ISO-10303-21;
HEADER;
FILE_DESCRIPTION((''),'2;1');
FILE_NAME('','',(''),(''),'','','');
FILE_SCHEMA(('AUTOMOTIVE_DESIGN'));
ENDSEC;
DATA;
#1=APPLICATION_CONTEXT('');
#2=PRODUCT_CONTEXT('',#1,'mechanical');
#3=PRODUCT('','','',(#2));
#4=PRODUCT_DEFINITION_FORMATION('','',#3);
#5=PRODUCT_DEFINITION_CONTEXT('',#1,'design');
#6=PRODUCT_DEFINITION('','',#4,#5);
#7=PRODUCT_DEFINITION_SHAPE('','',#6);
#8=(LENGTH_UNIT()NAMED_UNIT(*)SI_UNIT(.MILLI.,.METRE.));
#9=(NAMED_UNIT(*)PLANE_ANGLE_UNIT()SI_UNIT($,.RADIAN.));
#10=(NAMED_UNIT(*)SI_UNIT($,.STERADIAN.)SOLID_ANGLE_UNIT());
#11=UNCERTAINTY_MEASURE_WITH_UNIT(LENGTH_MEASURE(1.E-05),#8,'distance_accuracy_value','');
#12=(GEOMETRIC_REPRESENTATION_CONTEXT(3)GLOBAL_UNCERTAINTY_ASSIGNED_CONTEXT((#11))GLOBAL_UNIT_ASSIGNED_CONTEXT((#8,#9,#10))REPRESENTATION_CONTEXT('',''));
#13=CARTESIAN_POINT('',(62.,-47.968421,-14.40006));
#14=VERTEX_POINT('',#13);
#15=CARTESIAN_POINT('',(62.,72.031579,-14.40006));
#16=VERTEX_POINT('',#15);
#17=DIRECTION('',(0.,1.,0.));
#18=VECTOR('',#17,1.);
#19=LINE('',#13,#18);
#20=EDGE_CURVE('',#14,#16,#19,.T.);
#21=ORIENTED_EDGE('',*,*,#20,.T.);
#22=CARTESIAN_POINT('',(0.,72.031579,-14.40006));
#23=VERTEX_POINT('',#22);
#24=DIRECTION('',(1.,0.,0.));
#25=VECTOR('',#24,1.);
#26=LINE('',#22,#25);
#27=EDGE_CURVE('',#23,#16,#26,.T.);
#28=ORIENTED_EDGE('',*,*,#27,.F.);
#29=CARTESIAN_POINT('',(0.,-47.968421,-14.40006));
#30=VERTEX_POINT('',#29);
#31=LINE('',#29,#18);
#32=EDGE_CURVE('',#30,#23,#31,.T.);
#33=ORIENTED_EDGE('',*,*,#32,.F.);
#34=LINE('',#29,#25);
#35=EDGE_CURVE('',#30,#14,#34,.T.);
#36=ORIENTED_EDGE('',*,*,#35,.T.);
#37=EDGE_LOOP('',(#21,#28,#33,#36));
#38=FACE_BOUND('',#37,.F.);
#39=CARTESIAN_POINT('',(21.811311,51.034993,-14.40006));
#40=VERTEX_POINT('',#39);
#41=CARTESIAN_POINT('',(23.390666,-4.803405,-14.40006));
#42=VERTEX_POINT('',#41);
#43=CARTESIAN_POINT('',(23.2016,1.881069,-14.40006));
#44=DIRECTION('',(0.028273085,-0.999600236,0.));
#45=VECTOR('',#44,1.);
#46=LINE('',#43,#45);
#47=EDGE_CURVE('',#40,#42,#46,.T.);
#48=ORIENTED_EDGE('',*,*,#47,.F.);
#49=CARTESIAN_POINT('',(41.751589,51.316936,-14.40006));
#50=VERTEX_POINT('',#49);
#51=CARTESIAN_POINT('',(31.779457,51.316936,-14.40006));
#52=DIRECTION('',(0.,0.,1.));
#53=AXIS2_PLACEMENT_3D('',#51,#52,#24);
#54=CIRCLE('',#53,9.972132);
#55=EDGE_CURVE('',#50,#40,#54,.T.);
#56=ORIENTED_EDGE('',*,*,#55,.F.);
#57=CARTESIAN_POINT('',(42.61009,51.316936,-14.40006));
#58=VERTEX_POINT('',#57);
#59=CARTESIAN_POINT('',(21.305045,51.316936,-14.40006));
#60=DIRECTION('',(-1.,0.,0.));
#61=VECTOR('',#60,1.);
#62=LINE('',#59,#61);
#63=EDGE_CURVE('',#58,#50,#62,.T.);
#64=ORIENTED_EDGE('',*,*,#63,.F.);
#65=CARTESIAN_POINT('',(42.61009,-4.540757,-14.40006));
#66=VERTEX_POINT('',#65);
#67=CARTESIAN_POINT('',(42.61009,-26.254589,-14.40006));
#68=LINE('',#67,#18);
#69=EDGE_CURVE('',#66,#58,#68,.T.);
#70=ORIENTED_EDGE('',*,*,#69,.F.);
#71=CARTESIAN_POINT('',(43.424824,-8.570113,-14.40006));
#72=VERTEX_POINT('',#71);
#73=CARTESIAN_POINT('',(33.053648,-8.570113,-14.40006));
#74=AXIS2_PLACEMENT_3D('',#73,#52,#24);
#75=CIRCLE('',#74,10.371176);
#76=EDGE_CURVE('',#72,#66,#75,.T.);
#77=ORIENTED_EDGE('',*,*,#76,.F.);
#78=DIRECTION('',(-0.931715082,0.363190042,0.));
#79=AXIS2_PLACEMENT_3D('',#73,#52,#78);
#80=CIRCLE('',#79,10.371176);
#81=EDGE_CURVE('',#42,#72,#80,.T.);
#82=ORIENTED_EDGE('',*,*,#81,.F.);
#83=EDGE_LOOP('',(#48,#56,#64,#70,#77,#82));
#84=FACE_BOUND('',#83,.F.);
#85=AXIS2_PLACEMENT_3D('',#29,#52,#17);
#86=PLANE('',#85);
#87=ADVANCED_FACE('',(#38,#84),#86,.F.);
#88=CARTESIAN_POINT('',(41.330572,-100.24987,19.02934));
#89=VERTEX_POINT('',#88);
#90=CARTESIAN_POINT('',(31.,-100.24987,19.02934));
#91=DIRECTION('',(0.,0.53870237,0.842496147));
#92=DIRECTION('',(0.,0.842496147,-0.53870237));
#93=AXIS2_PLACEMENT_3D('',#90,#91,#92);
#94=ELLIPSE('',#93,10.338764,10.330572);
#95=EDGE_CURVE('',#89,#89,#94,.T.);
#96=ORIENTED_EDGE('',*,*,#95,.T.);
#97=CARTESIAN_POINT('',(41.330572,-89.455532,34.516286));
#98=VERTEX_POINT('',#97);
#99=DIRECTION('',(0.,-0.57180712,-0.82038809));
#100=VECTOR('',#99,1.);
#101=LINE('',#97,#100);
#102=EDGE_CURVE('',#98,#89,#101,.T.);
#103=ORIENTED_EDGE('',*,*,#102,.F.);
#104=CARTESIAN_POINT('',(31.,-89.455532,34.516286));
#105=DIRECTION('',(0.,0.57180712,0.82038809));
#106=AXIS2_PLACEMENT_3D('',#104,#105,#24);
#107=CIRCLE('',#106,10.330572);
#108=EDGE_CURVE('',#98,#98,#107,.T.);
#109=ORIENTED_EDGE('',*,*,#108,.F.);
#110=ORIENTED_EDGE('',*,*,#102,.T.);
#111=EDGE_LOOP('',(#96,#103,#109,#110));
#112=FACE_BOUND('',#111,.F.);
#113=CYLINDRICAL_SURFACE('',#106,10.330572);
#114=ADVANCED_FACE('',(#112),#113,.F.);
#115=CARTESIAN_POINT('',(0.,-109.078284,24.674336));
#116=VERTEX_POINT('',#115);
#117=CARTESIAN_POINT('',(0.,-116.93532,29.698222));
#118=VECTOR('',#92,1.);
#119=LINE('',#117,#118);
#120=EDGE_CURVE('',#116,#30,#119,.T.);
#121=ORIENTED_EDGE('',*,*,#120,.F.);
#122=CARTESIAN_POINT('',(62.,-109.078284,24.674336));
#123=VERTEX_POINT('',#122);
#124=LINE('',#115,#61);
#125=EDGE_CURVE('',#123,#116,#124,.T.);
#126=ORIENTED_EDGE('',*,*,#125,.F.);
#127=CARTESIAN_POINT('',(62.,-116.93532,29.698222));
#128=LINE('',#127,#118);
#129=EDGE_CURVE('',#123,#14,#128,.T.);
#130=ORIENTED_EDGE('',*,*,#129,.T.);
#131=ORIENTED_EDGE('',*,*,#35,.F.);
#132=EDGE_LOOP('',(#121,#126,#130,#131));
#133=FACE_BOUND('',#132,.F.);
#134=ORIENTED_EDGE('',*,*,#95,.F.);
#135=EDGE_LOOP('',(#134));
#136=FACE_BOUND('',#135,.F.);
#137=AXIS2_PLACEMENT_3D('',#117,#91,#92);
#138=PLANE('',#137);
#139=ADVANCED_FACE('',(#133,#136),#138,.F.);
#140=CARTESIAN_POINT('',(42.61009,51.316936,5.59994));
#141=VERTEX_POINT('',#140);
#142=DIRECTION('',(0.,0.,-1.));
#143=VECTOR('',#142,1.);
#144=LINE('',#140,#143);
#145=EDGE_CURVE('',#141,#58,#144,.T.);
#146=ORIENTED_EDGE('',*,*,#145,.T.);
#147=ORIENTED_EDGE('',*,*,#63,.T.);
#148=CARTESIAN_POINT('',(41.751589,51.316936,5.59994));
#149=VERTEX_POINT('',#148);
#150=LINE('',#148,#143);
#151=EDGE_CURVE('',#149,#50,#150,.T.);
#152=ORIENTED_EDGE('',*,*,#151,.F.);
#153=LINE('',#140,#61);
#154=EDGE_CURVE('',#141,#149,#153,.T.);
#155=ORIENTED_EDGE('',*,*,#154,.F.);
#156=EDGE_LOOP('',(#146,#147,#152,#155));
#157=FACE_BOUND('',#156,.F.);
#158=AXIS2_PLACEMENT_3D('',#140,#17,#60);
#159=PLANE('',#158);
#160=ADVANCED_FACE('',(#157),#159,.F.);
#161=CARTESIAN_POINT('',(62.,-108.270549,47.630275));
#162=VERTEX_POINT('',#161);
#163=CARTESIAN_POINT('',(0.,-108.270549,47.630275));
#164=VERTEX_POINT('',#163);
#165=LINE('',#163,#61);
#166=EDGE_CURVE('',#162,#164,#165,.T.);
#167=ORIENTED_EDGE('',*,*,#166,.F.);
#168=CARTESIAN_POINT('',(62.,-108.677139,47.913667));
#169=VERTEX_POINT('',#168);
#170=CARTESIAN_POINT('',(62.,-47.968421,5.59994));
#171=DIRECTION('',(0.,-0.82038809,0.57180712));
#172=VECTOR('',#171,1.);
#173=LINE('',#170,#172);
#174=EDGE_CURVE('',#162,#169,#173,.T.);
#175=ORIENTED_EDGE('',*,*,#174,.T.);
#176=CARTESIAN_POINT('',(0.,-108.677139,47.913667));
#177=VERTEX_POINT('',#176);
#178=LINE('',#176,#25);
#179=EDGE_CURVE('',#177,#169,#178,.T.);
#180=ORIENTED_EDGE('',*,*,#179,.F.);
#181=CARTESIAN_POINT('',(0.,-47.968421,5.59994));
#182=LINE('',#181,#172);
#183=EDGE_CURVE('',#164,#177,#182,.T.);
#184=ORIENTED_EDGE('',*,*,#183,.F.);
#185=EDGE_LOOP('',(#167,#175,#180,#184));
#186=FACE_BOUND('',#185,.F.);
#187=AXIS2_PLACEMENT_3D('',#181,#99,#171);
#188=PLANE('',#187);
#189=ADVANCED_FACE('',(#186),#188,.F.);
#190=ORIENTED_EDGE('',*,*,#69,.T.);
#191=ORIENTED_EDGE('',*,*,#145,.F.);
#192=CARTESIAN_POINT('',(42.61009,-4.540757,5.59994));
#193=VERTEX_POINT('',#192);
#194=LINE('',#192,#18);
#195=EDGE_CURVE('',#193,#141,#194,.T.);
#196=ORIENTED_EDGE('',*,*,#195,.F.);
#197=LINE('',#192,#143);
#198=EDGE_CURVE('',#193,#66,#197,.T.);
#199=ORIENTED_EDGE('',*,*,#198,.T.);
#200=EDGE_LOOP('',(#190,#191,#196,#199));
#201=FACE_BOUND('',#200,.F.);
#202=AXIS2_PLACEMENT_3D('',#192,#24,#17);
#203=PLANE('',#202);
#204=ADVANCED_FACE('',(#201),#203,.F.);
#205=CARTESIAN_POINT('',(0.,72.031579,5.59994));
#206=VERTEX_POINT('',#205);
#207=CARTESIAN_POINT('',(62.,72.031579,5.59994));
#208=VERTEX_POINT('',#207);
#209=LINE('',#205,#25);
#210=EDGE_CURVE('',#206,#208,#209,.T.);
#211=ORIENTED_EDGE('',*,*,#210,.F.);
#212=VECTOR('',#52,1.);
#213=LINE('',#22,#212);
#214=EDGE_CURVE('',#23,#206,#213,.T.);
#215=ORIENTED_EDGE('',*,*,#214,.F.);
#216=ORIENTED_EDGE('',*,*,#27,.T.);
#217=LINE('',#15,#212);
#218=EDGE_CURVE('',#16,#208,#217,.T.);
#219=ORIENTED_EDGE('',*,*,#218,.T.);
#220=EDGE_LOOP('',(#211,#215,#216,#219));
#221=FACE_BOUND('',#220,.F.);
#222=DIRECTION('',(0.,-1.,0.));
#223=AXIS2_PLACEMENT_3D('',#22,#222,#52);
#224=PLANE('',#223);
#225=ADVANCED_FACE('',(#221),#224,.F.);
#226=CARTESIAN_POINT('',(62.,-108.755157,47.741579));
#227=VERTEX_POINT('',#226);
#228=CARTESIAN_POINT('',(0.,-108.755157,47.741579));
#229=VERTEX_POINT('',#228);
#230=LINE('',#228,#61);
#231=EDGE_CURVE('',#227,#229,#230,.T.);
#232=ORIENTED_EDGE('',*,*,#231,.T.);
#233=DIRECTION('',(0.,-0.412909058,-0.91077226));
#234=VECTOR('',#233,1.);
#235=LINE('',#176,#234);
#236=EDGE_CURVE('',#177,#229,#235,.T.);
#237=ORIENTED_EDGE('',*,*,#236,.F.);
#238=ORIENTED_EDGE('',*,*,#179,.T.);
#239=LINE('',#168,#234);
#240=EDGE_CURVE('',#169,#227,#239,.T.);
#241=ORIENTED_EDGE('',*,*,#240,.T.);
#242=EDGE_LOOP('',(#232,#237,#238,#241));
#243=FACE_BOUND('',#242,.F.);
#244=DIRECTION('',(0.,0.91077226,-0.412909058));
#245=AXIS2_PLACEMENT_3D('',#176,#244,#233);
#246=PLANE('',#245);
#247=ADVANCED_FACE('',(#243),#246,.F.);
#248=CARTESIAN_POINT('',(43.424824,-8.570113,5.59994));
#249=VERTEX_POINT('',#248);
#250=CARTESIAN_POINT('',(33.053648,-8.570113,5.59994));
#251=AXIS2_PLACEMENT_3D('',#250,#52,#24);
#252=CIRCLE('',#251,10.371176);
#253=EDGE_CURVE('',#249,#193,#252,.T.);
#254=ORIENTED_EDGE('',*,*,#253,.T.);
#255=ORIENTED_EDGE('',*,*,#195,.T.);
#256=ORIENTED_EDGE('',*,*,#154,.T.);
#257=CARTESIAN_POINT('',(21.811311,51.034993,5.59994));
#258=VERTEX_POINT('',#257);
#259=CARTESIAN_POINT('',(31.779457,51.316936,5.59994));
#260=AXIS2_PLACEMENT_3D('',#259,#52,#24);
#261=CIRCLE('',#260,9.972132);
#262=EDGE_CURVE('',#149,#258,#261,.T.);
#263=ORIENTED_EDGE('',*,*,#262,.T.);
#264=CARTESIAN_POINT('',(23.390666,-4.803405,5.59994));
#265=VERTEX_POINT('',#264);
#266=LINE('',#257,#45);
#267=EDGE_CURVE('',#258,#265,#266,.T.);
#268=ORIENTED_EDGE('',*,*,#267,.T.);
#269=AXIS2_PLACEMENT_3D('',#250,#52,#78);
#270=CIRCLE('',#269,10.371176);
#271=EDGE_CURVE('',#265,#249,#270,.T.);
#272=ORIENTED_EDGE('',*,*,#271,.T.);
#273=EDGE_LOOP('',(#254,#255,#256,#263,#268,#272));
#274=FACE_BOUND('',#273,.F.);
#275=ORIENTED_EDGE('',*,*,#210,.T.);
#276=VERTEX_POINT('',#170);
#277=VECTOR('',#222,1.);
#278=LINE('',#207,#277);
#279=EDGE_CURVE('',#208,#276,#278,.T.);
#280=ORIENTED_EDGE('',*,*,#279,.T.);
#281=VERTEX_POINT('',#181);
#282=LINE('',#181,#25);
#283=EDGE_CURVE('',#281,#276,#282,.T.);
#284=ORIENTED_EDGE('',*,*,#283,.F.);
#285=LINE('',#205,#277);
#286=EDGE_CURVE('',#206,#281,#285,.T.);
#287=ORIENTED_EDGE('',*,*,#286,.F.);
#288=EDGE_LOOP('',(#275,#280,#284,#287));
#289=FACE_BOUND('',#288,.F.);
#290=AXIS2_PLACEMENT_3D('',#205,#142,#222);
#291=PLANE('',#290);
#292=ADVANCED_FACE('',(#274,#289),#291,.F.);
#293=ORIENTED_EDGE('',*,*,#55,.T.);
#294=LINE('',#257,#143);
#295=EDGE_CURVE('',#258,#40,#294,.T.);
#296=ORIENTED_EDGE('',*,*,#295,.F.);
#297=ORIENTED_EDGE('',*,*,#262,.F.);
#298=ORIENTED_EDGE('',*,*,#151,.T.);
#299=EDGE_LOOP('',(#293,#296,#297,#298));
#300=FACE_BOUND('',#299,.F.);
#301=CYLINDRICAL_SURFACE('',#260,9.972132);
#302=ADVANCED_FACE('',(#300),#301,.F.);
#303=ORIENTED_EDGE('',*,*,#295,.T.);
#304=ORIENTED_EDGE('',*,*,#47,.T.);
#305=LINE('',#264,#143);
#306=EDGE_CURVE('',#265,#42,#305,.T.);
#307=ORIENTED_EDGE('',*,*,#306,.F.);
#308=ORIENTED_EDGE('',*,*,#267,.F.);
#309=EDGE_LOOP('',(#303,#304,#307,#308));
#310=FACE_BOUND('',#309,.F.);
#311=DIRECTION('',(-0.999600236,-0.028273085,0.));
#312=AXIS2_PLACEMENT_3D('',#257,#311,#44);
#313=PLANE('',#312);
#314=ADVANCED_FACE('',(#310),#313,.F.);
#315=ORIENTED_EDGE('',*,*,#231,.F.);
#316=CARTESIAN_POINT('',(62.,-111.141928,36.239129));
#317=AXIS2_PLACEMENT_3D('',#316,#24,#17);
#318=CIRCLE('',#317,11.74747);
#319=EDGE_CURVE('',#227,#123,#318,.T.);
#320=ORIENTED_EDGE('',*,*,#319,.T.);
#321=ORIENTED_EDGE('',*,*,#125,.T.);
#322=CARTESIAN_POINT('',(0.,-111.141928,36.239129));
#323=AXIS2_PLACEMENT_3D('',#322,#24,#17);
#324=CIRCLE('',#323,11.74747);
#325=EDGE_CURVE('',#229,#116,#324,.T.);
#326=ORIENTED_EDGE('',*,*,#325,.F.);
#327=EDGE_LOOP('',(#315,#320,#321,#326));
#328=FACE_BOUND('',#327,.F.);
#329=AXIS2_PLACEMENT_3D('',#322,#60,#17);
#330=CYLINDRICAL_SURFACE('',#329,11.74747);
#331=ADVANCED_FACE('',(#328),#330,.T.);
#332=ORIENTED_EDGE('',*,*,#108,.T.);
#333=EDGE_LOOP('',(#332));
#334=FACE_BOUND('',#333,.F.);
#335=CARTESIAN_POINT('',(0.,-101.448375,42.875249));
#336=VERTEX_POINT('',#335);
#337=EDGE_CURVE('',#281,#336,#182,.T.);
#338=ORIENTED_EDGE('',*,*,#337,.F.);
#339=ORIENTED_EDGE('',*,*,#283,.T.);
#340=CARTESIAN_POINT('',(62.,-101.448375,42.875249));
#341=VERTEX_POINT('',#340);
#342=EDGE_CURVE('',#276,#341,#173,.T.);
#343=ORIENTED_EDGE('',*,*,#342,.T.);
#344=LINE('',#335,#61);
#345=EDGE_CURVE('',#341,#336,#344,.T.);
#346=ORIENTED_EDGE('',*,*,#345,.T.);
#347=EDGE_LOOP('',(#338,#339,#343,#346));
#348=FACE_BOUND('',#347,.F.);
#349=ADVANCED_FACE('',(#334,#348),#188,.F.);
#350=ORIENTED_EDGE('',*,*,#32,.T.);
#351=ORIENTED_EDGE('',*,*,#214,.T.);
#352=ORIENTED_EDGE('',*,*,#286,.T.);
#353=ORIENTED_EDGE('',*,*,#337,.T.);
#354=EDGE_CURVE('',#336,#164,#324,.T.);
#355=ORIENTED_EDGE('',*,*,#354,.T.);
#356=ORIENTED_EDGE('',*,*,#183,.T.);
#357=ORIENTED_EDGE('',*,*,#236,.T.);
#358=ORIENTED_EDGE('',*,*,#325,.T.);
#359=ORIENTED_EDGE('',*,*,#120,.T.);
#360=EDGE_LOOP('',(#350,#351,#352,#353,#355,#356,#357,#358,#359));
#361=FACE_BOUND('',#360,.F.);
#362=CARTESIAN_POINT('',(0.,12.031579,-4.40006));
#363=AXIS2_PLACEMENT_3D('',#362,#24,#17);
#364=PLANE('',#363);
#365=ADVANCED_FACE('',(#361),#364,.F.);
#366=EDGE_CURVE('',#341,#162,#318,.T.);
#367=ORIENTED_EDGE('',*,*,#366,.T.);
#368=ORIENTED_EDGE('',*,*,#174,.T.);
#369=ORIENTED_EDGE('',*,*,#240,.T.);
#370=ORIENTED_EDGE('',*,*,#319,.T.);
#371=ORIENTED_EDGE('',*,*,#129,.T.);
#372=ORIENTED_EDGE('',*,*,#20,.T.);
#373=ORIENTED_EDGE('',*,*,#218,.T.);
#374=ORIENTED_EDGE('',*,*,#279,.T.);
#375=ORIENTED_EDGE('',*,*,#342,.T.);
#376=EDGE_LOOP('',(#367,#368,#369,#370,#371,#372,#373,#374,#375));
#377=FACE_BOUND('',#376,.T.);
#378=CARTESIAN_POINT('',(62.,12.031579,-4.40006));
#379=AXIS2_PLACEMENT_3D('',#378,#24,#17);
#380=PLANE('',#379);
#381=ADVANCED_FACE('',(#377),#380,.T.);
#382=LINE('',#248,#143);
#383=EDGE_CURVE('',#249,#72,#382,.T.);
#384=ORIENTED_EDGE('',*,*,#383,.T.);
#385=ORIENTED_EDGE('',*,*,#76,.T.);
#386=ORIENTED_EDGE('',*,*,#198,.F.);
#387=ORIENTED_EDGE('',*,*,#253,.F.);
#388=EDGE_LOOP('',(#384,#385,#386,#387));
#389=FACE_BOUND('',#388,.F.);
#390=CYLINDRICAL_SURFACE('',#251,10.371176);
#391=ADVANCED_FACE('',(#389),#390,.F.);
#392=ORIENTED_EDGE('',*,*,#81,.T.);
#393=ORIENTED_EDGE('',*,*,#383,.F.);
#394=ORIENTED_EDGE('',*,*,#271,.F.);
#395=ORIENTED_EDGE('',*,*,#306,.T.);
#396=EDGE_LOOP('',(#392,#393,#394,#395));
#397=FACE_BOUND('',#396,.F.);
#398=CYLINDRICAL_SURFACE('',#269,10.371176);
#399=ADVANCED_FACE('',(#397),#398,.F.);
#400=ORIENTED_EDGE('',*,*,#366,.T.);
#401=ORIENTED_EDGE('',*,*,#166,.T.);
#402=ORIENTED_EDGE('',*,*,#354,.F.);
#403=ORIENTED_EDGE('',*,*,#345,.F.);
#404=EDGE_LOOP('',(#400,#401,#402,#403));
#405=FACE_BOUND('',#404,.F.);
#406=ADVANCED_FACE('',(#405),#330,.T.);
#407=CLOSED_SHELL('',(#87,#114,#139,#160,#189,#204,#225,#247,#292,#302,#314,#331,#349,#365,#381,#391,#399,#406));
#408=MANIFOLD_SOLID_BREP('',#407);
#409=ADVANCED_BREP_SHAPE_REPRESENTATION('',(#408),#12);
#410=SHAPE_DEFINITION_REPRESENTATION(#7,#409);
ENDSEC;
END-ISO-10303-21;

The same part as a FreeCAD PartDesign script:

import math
import FreeCAD as App
import Part
import Sketcher

V = App.Vector
Q = App.Units.Quantity

doc = App.newDocument("Part")
params = doc.addObject("Spreadsheet::Sheet", "Params")
for row, (alias, value) in enumerate([
    ("sketch1_width", "120 mm"),
    ("sketch1_height", "20 mm"),
    ("sketch1_length", "74 mm"),
    ("sketch1_length2", "20 mm"),
    ("pad1_length", "62 mm"),
    ("pad2_length", "62 mm"),
    ("pocket1_length", "62 mm"),
    ("pocket2_length", "62 mm"),
], start=1):
    params.set(f"A{row}", alias)
    params.set(f"B{row}", "=" + value)
    params.setAlias(f"B{row}", alias)

body = doc.addObject("PartDesign::Body", "Body")

sketch1 = doc.addObject("Sketcher::SketchObject", "Sketch")
body.addObject(sketch1)
sketch1.AttachmentSupport = (doc.YZ_Plane, [""])
sketch1.MapMode = "FlatFace"
sketch1.addGeometry([
    Part.LineSegment(V(72.031579, 5.59994, 0), V(-47.968421, 5.59994, 0)),
    Part.LineSegment(V(-47.968421, 5.59994, 0), V(-108.677139, 47.913667, 0)),
    Part.LineSegment(V(-108.677139, 47.913667, 0), V(-116.93532, 29.698222, 0)),
    Part.LineSegment(V(-116.93532, 29.698222, 0), V(-47.968421, -14.40006, 0)),
    Part.LineSegment(V(-47.968421, -14.40006, 0), V(72.031579, -14.40006, 0)),
    Part.LineSegment(V(72.031579, -14.40006, 0), V(72.031579, 5.59994, 0)),
], False)
sketch1.addConstraint([
    Sketcher.Constraint("Coincident", 0, 2, 1, 1),
    Sketcher.Constraint("Coincident", 1, 2, 2, 1),
    Sketcher.Constraint("Coincident", 2, 2, 3, 1),
    Sketcher.Constraint("Coincident", 3, 2, 4, 1),
    Sketcher.Constraint("Coincident", 4, 2, 5, 1),
    Sketcher.Constraint("Coincident", 5, 2, 0, 1),
    Sketcher.Constraint("Horizontal", 0),
    Sketcher.Constraint("Horizontal", 4),
    Sketcher.Constraint("Vertical", 5),
    Sketcher.Constraint("Vertical", 0, 2, 3, 2),
    Sketcher.Constraint("DistanceX", 0, 2, 0, 1, Q("120 mm")),
    Sketcher.Constraint("DistanceY", 5, 1, 5, 2, Q("20 mm")),
    Sketcher.Constraint("Distance", 1, Q("74 mm")),
    Sketcher.Constraint("Distance", 2, Q("20 mm")),
    Sketcher.Constraint("DistanceX", 2, 2, 0, 2, Q("68.9669 mm")),
    Sketcher.Constraint("DistanceX", 0, 2, -1, 1, Q("47.968421 mm")),
    Sketcher.Constraint("DistanceY", -1, 1, 0, 2, Q("5.59994 mm")),
    Sketcher.Constraint("DistanceX", 1, 2, -1, 1, Q("108.677139 mm")),
])
sketch1.setExpression("Constraints[10]", "Params.sketch1_width")
sketch1.setExpression("Constraints[11]", "Params.sketch1_height")
sketch1.setExpression("Constraints[12]", "Params.sketch1_length")
sketch1.setExpression("Constraints[13]", "Params.sketch1_length2")
pad1 = doc.addObject("PartDesign::Pad", "Pad")
body.addObject(pad1)
pad1.Profile = sketch1
pad1.setExpression("Length", "Params.pad1_length")

sketch2 = doc.addObject("Sketcher::SketchObject", "Sketch001")
body.addObject(sketch2)
sketch2.AttachmentSupport = (doc.YZ_Plane, [""])
sketch2.MapMode = "FlatFace"
sketch2.addGeometry(Part.Circle(V(-111.141928, 36.239129, 0), V(0, 0, 1), 11.74747), False)
sketch2.addConstraint([
    Sketcher.Constraint("Diameter", 0, Q("23.494939 mm")),
    Sketcher.Constraint("DistanceY", -1, 1, 0, 3, Q("36.239129 mm")),
    Sketcher.Constraint("DistanceX", 0, 3, -1, 1, Q("111.141928 mm")),
])
pad2 = doc.addObject("PartDesign::Pad", "Pad001")
body.addObject(pad2)
pad2.Profile = sketch2
pad2.setExpression("Length", "Params.pad2_length")

sketch3 = doc.addObject("Sketcher::SketchObject", "Sketch002")
body.addObject(sketch3)
sketch3.AttachmentSupport = (doc.XY_Plane, [""])
sketch3.MapMode = "FlatFace"
sketch3.AttachmentOffset = App.Placement(V(0, 0, 5.59994), App.Rotation())
sketch3.addGeometry([
    Part.ArcOfCircle(Part.Circle(V(31.779457, 51.316936, 0), V(0, 0, 1), 9.972132), math.radians(0), math.radians(181.620144)),
    Part.LineSegment(V(21.811311, 51.034993, 0), V(23.390666, -4.803405, 0)),
    Part.ArcOfCircle(Part.Circle(V(33.053648, -8.570113, 0), V(0, 0, 1), 10.371176), math.radians(158.703763), math.radians(360)),
    Part.ArcOfCircle(Part.Circle(V(33.053648, -8.570113, 0), V(0, 0, 1), 10.371176), math.radians(0), math.radians(22.862119)),
    Part.LineSegment(V(42.61009, -4.540757, 0), V(42.61009, 51.316936, 0)),
    Part.LineSegment(V(42.61009, 51.316936, 0), V(41.751589, 51.316936, 0)),
], False)
sketch3.addConstraint([
    Sketcher.Constraint("Coincident", 0, 2, 1, 1),
    Sketcher.Constraint("Coincident", 1, 2, 2, 1),
    Sketcher.Constraint("Coincident", 2, 2, 3, 1),
    Sketcher.Constraint("Coincident", 3, 2, 4, 1),
    Sketcher.Constraint("Coincident", 4, 2, 5, 1),
    Sketcher.Constraint("Coincident", 5, 2, 0, 1),
    Sketcher.Constraint("Vertical", 4),
    Sketcher.Constraint("Horizontal", 5),
    Sketcher.Constraint("Coincident", 3, 3, 2, 3),
    Sketcher.Constraint("DistanceX", 5, 2, 5, 1, Q("0.858501 mm")),
    Sketcher.Constraint("Radius", 0, Q("9.972132 mm")),
    Sketcher.Constraint("Radius", 2, Q("10.371176 mm")),
    Sketcher.Constraint("Distance", 1, Q("55.860729 mm")),
    Sketcher.Constraint("DistanceY", 4, 1, 4, 2, Q("55.857693 mm")),
    Sketcher.Constraint("DistanceX", -1, 1, 0, 2, Q("21.811311 mm")),
    Sketcher.Constraint("DistanceX", -1, 1, 3, 2, Q("42.61009 mm")),
    Sketcher.Constraint("DistanceX", 0, 3, 2, 3, Q("1.274191 mm")),
    Sketcher.Constraint("DistanceY", 2, 3, 0, 3, Q("59.887049 mm")),
    Sketcher.Constraint("DistanceY", 2, 2, 1, 2, Q("3.766708 mm")),
    Sketcher.Constraint("DistanceY", -1, 1, 0, 3, Q("51.316936 mm")),
])
pocket1 = doc.addObject("PartDesign::Pocket", "Pocket")
body.addObject(pocket1)
pocket1.Profile = sketch3
pocket1.setExpression("Length", "Params.pocket1_length")

sketch4 = doc.addObject("Sketcher::SketchObject", "Sketch003")
body.addObject(sketch4)
sketch4.Placement = App.Placement(V(0, -13.056964, -18.733201), App.Rotation(V(1, 0, 0), V(0, 0.82038809, -0.57180712), V(0, 0.57180712, 0.82038809), "ZXY"))
sketch4.addGeometry(Part.Circle(V(31, -93.124911, 0), V(0, 0, 1), 10.330572), False)
sketch4.addConstraint([
    Sketcher.Constraint("DistanceX", -1, 1, 0, 3, Q("31 mm")),
    Sketcher.Constraint("Diameter", 0, Q("20.661145 mm")),
    Sketcher.Constraint("DistanceY", 0, 3, -1, 1, Q("93.124911 mm")),
])
pocket2 = doc.addObject("PartDesign::Pocket", "Pocket001")
body.addObject(pocket2)
pocket2.Profile = sketch4
pocket2.setExpression("Length", "Params.pocket2_length")

doc.recompute()
